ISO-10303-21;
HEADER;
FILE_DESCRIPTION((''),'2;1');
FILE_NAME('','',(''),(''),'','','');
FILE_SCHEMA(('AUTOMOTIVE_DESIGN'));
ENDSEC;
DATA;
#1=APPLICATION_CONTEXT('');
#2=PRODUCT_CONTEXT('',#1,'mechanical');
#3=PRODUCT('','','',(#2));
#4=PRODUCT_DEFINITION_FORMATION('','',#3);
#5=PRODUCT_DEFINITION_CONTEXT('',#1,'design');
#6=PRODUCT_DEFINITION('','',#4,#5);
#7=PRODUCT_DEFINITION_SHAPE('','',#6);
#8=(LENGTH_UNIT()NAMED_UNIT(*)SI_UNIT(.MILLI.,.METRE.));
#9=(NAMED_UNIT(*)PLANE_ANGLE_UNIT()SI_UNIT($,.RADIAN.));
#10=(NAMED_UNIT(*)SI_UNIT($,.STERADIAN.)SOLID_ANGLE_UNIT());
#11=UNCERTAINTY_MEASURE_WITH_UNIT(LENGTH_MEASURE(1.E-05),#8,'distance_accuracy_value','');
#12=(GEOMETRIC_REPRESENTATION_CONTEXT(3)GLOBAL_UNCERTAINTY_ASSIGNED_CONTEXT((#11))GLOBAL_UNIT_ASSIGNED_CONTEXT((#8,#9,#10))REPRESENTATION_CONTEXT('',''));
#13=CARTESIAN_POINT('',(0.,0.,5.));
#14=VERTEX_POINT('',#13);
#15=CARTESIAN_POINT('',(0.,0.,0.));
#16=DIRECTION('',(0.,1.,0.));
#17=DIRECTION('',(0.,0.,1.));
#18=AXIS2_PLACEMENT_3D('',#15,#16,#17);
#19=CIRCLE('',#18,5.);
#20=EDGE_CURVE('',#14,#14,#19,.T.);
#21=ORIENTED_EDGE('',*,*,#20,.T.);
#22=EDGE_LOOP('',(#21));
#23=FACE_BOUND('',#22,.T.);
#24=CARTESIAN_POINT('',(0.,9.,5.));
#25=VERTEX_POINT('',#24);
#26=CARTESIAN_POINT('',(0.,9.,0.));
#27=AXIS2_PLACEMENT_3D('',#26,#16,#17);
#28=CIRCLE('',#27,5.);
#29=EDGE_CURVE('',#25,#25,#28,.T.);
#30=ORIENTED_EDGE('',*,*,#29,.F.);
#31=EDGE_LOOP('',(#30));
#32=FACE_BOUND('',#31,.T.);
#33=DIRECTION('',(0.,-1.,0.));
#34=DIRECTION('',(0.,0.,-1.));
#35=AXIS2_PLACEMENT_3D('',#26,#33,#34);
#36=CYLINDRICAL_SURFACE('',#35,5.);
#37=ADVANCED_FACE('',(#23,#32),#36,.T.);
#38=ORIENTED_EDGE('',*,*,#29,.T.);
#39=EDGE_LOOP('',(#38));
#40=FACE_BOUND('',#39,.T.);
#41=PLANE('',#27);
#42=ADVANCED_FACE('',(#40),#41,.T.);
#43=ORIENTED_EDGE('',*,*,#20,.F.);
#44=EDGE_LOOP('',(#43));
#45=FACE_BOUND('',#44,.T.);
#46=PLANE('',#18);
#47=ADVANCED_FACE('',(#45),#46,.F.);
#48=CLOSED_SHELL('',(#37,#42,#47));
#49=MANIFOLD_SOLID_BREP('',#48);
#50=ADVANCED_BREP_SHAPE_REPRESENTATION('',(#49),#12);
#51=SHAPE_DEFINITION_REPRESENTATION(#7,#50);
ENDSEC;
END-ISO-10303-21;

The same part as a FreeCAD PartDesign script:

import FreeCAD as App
import Part
import Sketcher
from FreeCAD import Vector

doc = App.newDocument("Part")
body = doc.addObject("PartDesign::Body", "Body")

# Sketch on XZ plane
sketch1 = body.newObject("Sketcher::SketchObject", "Sketch")
sketch1.AttachmentSupport = (doc.getObject("XZ_Plane"), [""])
sketch1.MapMode = "FlatFace"
sketch1.addGeometry(Part.Circle(Vector(0, 0, 0), Vector(0, 0, 1), 5), False)
sketch1.addConstraint([
    Sketcher.Constraint("Coincident", 0, 3, -1, 1),
    Sketcher.Constraint("Diameter", 0, 10.0),
])
pad1 = body.newObject("PartDesign::Pad", "Pad")
pad1.Profile = sketch1
pad1.Length = 9
pad1.Reversed = True

doc.recompute()
